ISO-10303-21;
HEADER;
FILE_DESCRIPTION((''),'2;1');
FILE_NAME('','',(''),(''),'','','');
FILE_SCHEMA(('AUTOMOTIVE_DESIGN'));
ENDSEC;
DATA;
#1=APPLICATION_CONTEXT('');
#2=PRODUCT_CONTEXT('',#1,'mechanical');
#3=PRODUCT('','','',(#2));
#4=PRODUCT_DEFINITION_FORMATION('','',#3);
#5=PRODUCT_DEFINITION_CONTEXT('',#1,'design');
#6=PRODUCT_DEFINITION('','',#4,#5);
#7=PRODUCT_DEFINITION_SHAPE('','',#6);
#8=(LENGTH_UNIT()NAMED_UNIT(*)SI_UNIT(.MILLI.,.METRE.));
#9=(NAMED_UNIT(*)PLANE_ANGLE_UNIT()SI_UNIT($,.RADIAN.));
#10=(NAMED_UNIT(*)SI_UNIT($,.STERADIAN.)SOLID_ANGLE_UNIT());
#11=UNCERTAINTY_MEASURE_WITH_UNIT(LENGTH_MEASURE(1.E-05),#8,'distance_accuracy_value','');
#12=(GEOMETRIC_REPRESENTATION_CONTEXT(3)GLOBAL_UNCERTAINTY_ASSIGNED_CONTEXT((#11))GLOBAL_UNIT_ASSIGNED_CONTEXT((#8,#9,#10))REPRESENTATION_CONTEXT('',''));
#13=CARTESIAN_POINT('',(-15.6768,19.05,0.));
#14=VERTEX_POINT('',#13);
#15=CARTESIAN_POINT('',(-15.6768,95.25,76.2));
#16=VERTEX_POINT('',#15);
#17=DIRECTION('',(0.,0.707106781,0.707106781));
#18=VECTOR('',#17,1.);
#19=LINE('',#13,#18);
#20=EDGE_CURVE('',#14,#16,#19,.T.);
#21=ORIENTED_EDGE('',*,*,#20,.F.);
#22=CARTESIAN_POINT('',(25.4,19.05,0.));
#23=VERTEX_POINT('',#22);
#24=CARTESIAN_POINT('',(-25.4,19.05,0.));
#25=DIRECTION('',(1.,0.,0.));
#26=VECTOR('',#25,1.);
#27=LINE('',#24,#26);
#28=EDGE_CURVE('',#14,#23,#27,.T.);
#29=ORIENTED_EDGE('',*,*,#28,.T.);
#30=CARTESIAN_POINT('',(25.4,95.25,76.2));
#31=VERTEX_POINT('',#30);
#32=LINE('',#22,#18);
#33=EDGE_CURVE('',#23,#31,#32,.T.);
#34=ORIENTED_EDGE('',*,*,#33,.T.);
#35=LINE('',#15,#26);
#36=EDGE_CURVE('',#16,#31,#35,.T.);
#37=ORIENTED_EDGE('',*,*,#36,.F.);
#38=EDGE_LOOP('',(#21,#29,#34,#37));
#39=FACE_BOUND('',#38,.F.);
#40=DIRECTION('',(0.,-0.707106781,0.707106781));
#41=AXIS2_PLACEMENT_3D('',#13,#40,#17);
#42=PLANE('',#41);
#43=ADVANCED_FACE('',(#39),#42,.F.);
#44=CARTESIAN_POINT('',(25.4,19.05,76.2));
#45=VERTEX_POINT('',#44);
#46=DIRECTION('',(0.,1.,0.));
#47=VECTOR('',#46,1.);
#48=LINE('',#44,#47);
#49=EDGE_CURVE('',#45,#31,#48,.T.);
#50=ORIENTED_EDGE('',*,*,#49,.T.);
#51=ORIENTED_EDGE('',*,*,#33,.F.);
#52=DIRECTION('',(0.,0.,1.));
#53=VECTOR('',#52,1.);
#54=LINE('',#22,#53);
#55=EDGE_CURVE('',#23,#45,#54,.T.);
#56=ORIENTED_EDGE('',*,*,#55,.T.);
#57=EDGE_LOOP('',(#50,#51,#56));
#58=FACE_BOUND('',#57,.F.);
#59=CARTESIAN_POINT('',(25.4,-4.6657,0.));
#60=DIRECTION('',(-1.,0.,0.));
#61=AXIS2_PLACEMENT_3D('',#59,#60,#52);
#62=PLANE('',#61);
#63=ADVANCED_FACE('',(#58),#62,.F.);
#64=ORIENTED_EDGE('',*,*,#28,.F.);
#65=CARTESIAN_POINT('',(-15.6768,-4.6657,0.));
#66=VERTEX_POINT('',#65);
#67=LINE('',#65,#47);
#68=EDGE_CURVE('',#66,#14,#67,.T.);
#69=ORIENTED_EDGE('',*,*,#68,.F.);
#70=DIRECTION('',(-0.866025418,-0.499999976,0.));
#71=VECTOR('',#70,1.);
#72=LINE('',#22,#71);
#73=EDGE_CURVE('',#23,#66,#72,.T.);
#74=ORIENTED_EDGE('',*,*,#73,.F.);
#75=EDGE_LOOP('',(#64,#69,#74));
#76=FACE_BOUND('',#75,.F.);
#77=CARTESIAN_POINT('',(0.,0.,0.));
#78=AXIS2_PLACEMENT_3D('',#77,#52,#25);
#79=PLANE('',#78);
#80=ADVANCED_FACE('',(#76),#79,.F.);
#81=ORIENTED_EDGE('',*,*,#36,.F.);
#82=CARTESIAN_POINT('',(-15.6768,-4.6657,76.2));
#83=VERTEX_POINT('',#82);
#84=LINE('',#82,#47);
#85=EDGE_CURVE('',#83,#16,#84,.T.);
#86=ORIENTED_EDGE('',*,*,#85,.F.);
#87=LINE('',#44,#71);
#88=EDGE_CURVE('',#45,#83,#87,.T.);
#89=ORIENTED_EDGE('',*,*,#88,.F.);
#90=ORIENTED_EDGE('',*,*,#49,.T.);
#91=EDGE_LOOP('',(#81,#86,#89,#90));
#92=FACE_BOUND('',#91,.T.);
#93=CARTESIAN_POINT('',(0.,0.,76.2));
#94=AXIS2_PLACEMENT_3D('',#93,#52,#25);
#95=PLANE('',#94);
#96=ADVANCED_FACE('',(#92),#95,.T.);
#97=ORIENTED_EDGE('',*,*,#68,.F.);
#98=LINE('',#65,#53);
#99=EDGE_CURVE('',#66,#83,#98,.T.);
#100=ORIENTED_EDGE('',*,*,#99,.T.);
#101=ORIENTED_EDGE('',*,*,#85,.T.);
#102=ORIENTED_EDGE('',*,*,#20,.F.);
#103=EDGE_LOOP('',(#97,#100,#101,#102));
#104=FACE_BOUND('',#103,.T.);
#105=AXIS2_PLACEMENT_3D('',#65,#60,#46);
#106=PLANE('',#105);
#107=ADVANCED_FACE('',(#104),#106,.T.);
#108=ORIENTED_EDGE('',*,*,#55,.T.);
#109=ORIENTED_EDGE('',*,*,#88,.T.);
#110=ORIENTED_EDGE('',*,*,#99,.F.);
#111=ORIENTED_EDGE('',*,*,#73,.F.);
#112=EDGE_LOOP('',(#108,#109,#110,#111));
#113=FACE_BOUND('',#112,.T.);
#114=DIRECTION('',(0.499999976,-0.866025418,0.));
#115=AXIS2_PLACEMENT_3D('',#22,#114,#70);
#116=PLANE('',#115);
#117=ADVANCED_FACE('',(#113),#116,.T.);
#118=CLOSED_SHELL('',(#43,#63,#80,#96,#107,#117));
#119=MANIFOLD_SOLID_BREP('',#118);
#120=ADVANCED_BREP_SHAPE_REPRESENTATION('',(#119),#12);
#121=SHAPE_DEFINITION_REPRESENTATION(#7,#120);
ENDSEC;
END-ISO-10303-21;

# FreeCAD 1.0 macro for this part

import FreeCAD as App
import Part
import Sketcher
from FreeCAD import Vector
Q = App.Units.Quantity

doc = App.newDocument("Part")
body = doc.addObject("PartDesign::Body", "Body")

# Sketch on XY plane
sketch1 = body.newObject("Sketcher::SketchObject", "Sketch")
sketch1.AttachmentSupport = (doc.getObject("XY_Plane"), [""])
sketch1.MapMode = "FlatFace"
sketch1.addGeometry([
    Part.LineSegment(Vector(-15.6768, -4.6657, 0), Vector(25.4, 19.05, 0)),
    Part.LineSegment(Vector(25.4, 19.05, 0), Vector(-15.6768, 19.05, 0)),
    Part.LineSegment(Vector(-15.6768, 19.05, 0), Vector(-15.6768, -4.6657, 0)),
], False)
sketch1.addConstraint([
    Sketcher.Constraint("Coincident", 0, 2, 1, 1),
    Sketcher.Constraint("Coincident", 1, 2, 2, 1),
    Sketcher.Constraint("Coincident", 2, 2, 0, 1),
    Sketcher.Constraint("Horizontal", 1),
    Sketcher.Constraint("Vertical", 2),
    Sketcher.Constraint("Angle", 0, Q("30 deg")),
    Sketcher.Constraint("DistanceY", 2, 2, 2, 1, Q("0.9337 in")),
    Sketcher.Constraint("DistanceX", -1, 1, 0, 2, Q("1 in")),
    Sketcher.Constraint("DistanceY", -1, 1, 0, 2, Q("0.75 in")),
])
pad1 = body.newObject("PartDesign::Pad", "Pad")
pad1.Profile = sketch1
pad1.Length = Q("3 in")

# Sketch on YZ plane
sketch2 = body.newObject("Sketcher::SketchObject", "Sketch001")
sketch2.AttachmentSupport = (doc.getObject("YZ_Plane"), [""])
sketch2.MapMode = "FlatFace"
sketch2.AttachmentOffset = App.Placement(Vector(0, 0, -0.6171969 * 25.4), App.Rotation())
sketch2.addGeometry([
    Part.LineSegment(Vector(95.25, 76.2, 0), Vector(19.05, 0, 0)),
    Part.LineSegment(Vector(19.05, 0, 0), Vector(19.05, 76.2, 0)),
    Part.LineSegment(Vector(19.05, 76.2, 0), Vector(95.25, 76.2, 0)),
], False)
sketch2.addConstraint([
    Sketcher.Constraint("Coincident", 0, 2, 1, 1),
    Sketcher.Constraint("Coincident", 1, 2, 2, 1),
    Sketcher.Constraint("Coincident", 2, 2, 0, 1),
    Sketcher.Constraint("Vertical", 1),
    Sketcher.Constraint("Horizontal", 2),
    Sketcher.Constraint("PointOnObject", 0, 2, -1),
    Sketcher.Constraint("Equal", 2, 1),
    Sketcher.Constraint("DistanceX", 2, 1, 2, 2, Q("3 in")),
    Sketcher.Constraint("DistanceX", -1, 1, 0, 2, Q("0.75 in")),
])
pad2 = body.newObject("PartDesign::Pad", "Pad001")
pad2.Profile = sketch2
pad2.Length = Q("1.6171969 in")

doc.recompute()
